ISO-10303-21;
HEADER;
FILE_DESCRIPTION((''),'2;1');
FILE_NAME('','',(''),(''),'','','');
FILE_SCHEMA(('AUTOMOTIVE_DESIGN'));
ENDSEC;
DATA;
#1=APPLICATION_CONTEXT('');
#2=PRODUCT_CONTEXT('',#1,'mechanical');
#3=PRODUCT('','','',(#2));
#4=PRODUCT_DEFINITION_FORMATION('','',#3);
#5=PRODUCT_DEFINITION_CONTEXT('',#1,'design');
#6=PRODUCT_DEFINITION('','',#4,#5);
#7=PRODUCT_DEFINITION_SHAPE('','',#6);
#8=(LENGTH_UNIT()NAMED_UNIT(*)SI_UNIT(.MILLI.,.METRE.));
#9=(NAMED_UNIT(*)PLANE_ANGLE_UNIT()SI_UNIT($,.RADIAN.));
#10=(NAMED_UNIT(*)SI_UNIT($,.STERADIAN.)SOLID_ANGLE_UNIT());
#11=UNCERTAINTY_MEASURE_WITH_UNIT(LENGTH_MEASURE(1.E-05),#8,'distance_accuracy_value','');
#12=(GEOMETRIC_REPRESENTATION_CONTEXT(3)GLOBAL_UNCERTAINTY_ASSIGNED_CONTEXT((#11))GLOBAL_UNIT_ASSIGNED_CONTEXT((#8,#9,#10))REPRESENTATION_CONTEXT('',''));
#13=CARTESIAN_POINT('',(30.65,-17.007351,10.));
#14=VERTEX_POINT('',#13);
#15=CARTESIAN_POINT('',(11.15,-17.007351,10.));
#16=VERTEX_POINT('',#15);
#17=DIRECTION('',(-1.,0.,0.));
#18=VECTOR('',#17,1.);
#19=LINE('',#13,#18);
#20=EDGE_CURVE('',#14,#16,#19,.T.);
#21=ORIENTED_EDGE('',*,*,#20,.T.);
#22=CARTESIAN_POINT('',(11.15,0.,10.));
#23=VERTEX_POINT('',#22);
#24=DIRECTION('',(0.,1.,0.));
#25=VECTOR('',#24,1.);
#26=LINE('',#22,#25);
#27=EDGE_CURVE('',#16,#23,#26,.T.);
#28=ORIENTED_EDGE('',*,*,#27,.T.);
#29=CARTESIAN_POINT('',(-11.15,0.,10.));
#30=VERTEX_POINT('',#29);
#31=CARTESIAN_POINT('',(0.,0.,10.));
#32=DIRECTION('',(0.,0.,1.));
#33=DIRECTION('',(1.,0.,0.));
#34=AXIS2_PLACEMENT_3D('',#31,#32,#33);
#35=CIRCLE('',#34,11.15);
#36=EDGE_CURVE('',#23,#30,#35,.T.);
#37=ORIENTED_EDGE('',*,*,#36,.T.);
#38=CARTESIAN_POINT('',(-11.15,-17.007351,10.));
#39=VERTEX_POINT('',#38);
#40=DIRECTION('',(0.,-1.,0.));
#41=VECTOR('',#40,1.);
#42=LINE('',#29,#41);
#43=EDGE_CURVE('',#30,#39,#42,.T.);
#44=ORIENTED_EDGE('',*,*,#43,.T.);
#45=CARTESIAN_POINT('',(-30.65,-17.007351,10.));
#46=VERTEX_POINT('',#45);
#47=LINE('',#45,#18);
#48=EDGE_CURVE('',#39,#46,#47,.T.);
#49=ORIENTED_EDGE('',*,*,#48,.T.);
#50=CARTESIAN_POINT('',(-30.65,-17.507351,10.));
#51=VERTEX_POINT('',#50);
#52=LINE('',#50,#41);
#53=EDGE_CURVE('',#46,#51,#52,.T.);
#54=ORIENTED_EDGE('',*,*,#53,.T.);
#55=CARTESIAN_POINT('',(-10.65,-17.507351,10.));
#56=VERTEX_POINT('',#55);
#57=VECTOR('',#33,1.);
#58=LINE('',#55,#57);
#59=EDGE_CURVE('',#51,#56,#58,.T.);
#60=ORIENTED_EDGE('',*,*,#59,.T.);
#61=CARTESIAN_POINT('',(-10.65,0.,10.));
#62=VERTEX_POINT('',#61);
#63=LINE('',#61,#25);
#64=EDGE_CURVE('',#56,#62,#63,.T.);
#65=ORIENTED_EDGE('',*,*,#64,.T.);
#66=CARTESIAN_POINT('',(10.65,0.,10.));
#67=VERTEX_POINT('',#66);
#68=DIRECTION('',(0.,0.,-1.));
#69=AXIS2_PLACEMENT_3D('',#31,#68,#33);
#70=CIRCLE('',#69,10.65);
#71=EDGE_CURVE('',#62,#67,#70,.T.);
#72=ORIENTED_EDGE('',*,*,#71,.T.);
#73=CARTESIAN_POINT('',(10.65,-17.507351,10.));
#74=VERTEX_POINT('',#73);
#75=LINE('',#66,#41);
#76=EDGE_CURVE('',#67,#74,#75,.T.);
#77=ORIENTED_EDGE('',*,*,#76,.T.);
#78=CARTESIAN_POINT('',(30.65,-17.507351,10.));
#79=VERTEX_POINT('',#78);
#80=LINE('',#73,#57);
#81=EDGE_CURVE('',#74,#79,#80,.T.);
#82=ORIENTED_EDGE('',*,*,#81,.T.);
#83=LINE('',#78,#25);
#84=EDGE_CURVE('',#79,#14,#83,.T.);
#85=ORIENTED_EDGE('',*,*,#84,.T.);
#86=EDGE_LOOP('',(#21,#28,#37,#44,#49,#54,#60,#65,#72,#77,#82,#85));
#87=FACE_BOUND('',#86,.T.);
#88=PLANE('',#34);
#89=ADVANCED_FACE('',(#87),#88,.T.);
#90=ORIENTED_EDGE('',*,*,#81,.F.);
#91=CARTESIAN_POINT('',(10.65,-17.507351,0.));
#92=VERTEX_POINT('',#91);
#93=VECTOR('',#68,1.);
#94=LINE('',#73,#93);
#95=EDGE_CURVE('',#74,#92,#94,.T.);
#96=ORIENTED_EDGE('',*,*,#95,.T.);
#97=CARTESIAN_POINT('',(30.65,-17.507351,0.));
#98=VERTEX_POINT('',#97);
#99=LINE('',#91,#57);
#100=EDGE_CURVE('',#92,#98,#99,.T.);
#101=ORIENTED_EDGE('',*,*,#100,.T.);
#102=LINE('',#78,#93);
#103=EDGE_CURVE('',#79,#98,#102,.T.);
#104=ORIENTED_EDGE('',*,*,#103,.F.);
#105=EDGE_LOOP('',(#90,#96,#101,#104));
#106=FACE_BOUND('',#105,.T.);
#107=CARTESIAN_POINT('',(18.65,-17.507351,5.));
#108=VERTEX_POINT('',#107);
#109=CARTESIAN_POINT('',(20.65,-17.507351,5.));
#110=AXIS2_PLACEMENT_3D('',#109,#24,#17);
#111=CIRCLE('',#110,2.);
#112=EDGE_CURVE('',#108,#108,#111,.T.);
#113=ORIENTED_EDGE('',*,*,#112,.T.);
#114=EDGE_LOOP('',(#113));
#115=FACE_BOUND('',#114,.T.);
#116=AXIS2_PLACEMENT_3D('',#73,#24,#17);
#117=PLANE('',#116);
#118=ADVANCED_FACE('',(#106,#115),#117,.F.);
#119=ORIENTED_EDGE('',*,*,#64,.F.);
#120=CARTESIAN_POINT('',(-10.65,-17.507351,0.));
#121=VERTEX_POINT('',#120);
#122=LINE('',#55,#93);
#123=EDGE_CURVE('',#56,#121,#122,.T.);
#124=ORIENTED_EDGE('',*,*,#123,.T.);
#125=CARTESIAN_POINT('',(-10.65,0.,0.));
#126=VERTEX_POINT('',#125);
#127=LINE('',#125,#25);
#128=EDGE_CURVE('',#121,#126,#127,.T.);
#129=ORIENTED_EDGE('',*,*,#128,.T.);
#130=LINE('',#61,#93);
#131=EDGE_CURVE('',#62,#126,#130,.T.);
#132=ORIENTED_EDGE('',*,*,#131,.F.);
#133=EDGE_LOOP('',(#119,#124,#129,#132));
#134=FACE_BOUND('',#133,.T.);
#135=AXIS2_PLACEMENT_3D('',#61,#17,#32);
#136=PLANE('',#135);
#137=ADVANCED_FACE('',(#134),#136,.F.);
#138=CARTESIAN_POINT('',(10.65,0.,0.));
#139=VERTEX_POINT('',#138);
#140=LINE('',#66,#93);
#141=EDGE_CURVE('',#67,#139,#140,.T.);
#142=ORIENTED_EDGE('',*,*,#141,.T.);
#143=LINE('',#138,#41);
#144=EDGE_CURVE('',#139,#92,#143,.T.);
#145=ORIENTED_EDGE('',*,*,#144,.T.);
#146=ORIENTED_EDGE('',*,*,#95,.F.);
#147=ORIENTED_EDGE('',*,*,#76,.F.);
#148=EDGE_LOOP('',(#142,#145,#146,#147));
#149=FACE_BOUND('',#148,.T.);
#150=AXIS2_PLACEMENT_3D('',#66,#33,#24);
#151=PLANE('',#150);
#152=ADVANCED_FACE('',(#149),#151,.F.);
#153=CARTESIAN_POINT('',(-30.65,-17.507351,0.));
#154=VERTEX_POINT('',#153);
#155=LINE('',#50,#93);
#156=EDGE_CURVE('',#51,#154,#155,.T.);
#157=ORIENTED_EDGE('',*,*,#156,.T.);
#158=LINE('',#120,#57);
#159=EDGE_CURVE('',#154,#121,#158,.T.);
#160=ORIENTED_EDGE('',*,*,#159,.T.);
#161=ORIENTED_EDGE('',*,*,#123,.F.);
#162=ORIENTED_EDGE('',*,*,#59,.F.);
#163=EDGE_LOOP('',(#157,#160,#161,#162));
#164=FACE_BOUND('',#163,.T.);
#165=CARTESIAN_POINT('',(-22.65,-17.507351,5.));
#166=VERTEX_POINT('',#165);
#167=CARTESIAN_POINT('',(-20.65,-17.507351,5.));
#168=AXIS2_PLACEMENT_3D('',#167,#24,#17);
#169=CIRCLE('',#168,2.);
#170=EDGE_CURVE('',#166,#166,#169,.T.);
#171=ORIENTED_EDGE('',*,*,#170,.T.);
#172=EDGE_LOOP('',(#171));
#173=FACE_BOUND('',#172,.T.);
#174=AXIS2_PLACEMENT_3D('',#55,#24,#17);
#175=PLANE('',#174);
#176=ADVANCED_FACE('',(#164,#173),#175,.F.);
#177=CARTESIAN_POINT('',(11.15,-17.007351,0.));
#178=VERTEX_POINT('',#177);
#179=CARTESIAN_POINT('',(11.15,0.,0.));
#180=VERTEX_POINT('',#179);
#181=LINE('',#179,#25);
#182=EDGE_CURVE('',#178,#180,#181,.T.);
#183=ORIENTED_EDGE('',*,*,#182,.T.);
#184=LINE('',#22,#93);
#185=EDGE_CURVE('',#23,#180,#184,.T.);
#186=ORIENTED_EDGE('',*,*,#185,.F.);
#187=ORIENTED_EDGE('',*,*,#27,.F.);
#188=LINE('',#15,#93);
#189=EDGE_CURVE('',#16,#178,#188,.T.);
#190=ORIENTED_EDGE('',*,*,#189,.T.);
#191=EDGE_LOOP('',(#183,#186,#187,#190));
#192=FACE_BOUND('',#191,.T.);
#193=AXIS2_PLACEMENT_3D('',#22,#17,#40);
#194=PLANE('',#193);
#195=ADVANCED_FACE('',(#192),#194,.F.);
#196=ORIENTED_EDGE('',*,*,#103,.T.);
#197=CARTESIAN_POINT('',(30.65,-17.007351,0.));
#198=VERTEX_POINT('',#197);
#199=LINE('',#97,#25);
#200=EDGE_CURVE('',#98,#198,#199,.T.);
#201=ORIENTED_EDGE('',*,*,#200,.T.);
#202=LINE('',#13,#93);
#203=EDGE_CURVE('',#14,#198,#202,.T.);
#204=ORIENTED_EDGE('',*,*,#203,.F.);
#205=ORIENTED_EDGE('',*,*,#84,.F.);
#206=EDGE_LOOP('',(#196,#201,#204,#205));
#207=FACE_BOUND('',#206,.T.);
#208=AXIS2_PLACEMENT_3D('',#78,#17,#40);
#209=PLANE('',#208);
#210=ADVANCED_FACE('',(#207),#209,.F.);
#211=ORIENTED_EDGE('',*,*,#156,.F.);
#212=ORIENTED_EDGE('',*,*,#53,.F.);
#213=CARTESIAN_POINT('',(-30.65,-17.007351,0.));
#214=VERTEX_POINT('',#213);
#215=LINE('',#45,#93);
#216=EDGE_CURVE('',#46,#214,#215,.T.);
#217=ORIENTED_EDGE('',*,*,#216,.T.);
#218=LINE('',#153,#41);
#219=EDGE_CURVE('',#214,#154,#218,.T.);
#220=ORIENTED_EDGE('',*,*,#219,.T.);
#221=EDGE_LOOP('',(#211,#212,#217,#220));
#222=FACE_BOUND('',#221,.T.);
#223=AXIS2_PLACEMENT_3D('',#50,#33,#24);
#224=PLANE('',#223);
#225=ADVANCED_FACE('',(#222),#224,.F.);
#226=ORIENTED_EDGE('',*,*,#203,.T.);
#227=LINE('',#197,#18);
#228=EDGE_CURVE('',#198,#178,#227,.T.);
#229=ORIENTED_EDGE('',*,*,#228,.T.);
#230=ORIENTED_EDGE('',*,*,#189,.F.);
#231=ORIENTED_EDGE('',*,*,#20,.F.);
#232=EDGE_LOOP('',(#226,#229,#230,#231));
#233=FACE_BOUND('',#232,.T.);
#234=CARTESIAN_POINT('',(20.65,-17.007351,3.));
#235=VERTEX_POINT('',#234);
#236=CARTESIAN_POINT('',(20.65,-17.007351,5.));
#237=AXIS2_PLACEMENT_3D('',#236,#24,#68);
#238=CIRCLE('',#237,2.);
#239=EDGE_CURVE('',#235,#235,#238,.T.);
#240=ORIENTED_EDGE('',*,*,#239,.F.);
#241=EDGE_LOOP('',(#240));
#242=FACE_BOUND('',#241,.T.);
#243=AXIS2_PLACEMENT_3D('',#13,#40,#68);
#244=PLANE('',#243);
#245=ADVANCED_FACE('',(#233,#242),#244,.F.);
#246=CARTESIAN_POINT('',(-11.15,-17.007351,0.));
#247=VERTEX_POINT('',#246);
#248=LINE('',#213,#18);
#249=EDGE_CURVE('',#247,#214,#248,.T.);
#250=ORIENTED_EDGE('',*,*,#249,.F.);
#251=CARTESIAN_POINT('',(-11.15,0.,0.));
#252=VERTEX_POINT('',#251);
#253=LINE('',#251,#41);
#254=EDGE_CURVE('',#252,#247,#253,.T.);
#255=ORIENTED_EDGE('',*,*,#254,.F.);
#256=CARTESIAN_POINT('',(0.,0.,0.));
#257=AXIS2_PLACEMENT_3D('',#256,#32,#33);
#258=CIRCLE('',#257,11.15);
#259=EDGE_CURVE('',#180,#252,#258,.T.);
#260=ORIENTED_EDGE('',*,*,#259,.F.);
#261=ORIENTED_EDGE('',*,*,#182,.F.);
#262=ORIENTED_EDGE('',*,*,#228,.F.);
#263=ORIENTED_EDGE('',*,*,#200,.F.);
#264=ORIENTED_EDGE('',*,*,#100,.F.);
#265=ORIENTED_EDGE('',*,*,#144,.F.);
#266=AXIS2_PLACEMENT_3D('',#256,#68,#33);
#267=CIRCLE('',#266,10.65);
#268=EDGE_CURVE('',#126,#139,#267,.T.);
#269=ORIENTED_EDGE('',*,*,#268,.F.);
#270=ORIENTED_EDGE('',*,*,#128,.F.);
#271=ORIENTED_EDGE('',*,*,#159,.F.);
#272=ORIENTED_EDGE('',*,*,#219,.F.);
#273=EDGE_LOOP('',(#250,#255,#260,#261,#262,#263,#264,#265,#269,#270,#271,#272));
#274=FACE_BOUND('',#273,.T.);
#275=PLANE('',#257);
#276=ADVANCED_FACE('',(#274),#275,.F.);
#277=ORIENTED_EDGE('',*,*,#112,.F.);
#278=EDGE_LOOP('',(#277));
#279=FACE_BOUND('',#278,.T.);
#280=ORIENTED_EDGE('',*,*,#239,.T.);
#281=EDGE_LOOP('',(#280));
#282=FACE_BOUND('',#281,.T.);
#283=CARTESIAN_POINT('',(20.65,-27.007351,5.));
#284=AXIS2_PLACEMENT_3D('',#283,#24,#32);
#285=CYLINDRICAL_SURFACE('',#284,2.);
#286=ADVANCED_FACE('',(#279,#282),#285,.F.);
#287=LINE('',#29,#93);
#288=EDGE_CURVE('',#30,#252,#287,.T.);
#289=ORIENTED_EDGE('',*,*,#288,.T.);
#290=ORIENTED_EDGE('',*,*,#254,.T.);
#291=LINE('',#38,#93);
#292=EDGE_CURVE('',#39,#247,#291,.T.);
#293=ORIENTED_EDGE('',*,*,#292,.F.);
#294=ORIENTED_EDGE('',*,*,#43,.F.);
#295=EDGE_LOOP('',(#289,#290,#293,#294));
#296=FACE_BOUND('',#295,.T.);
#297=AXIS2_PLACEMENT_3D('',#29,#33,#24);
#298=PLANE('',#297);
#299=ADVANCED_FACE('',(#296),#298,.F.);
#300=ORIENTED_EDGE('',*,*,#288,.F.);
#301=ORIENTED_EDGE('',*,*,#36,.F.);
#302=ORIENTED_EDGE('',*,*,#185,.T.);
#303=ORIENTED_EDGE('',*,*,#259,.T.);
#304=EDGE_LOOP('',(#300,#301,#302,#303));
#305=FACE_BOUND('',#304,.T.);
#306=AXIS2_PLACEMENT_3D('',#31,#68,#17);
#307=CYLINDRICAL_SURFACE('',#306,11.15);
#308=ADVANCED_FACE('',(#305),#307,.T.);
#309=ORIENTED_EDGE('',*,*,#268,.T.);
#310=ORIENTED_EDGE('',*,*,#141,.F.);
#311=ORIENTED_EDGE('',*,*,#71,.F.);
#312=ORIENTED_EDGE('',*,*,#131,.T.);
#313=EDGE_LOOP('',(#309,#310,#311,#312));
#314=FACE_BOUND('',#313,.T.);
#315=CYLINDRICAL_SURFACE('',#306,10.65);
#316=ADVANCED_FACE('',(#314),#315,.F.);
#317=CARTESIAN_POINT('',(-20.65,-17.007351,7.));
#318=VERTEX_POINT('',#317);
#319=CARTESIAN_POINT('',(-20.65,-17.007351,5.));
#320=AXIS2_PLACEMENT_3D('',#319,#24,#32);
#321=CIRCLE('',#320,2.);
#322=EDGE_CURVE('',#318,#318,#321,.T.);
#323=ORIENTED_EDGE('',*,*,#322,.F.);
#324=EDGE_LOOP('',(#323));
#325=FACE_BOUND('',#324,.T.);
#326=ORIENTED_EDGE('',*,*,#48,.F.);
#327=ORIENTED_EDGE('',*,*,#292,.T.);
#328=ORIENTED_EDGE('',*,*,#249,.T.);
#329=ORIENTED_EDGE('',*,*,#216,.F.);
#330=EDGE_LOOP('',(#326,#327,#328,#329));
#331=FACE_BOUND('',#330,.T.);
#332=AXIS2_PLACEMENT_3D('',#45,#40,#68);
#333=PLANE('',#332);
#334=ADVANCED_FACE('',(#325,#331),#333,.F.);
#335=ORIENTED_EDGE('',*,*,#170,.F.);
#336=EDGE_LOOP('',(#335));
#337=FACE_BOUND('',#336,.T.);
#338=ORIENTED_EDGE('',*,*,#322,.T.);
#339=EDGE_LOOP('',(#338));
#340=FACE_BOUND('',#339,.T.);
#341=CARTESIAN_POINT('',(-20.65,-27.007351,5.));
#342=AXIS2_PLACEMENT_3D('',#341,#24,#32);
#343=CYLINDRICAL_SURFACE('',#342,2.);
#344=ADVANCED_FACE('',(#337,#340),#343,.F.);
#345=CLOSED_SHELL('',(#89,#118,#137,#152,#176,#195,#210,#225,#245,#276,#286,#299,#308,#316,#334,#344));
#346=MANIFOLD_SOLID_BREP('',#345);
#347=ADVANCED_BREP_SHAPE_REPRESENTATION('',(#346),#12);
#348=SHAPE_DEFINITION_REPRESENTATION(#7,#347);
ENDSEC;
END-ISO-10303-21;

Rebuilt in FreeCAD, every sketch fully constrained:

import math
import FreeCAD as App
import Part
import Sketcher
Q = App.Units.Quantity

doc = App.newDocument("Part")
body = doc.addObject("PartDesign::Body", "Body")

# Sketch on XY plane
sketch1 = body.newObject("Sketcher::SketchObject", "Sketch")
sketch1.AttachmentSupport = (doc.getObject("XY_Plane"), [""])
sketch1.MapMode = "FlatFace"
sketch1.addGeometry(Part.LineSegment(App.Vector(-11.2, 0, 0), App.Vector(-11.2, -17, 0)), False)
sketch1.addGeometry(Part.LineSegment(App.Vector(-11.2, -17, 0), App.Vector(-30.6, -17, 0)), False)
sketch1.addGeometry(Part.LineSegment(App.Vector(-30.6, -17, 0), App.Vector(-30.6, -17.5, 0)), False)
sketch1.addGeometry(Part.LineSegment(App.Vector(-30.6, -17.5, 0), App.Vector(-10.7, -17.5, 0)), False)
sketch1.addGeometry(Part.LineSegment(App.Vector(-10.7, -17.5, 0), App.Vector(-10.7, 0, 0)), False)
sketch1.addGeometry(Part.ArcOfCircle(Part.Circle(App.Vector(0, 0, 0), App.Vector(0, 0, 1), 10.7), math.radians(0), math.radians(180)), False)
sketch1.addGeometry(Part.LineSegment(App.Vector(10.7, 0, 0), App.Vector(10.7, -17.5, 0)), False)
sketch1.addGeometry(Part.LineSegment(App.Vector(10.7, -17.5, 0), App.Vector(30.6, -17.5, 0)), False)
sketch1.addGeometry(Part.LineSegment(App.Vector(30.6, -17.5, 0), App.Vector(30.6, -17, 0)), False)
sketch1.addGeometry(Part.LineSegment(App.Vector(30.6, -17, 0), App.Vector(11.2, -17, 0)), False)
sketch1.addGeometry(Part.LineSegment(App.Vector(11.2, -17, 0), App.Vector(11.2, 0, 0)), False)
sketch1.addGeometry(Part.ArcOfCircle(Part.Circle(App.Vector(0, 0, 0), App.Vector(0, 0, 1), 11.2), math.radians(0), math.radians(180)), False)
sketch1.addConstraint(Sketcher.Constraint("Coincident", 0, 2, 1, 1))
sketch1.addConstraint(Sketcher.Constraint("Coincident", 1, 2, 2, 1))
sketch1.addConstraint(Sketcher.Constraint("Coincident", 2, 2, 3, 1))
sketch1.addConstraint(Sketcher.Constraint("Coincident", 3, 2, 4, 1))
sketch1.addConstraint(Sketcher.Constraint("Tangent", 4, 2, 5, 2))
sketch1.addConstraint(Sketcher.Constraint("Tangent", 5, 1, 6, 1))
sketch1.addConstraint(Sketcher.Constraint("Coincident", 6, 2, 7, 1))
sketch1.addConstraint(Sketcher.Constraint("Coincident", 7, 2, 8, 1))
sketch1.addConstraint(Sketcher.Constraint("Coincident", 8, 2, 9, 1))
sketch1.addConstraint(Sketcher.Constraint("Coincident", 9, 2, 10, 1))
sketch1.addConstraint(Sketcher.Constraint("Tangent", 10, 2, 11, 1))
sketch1.addConstraint(Sketcher.Constraint("Tangent", 11, 2, 0, 1))
sketch1.addConstraint(Sketcher.Constraint("Vertical", 0))
sketch1.addConstraint(Sketcher.Constraint("Horizontal", 1))
sketch1.addConstraint(Sketcher.Constraint("Vertical", 2))
sketch1.addConstraint(Sketcher.Constraint("Horizontal", 3))
sketch1.addConstraint(Sketcher.Constraint("Vertical", 4))
sketch1.addConstraint(Sketcher.Constraint("Vertical", 6))
sketch1.addConstraint(Sketcher.Constraint("Horizontal", 7))
sketch1.addConstraint(Sketcher.Constraint("Vertical", 8))
sketch1.addConstraint(Sketcher.Constraint("Horizontal", 9))
sketch1.addConstraint(Sketcher.Constraint("Vertical", 10))
sketch1.addConstraint(Sketcher.Constraint("Coincident", 5, 3, -1, 1))
sketch1.addConstraint(Sketcher.Constraint("Coincident", 11, 3, -1, 1))
sketch1.addConstraint(Sketcher.Constraint("Symmetric", 2, 2, 7, 2, -2))
sketch1.addConstraint(Sketcher.Constraint("Horizontal", 1, 2, 8, 2))
sketch1.addConstraint(Sketcher.Constraint("DistanceX", 3, 1, 3, 2, Q("20 mm")))
sketch1.addConstraint(Sketcher.Constraint("Radius", 5, Q("10.65 mm")))
sketch1.addConstraint(Sketcher.Constraint("Radius", 11, Q("11.15 mm")))
sketch1.addConstraint(Sketcher.Constraint("DistanceY", 2, 2, 2, 1, Q("0.5 mm")))
sketch1.addConstraint(Sketcher.Constraint("DistanceY", 0, 2, 0, 1, Q("17.007351 mm")))
pad1 = body.newObject("PartDesign::Pad", "Pad")
pad1.Profile = sketch1
pad1.Length = 10

# Sketch on XZ plane
sketch2 = body.newObject("Sketcher::SketchObject", "Sketch001")
sketch2.AttachmentSupport = (doc.getObject("XZ_Plane"), [""])
sketch2.MapMode = "FlatFace"
sketch2.AttachmentOffset = App.Placement(App.Vector(0, 0, 17.007351), App.Rotation())
sketch2.addGeometry(Part.Circle(App.Vector(-20.6, 5, 0), App.Vector(0, 0, 1), 2), False)
sketch2.addGeometry(Part.Circle(App.Vector(20.6, 5, 0), App.Vector(0, 0, 1), 2), False)
sketch2.addConstraint(Sketcher.Constraint("Equal", 0, 1))
sketch2.addConstraint(Sketcher.Constraint("Symmetric", 0, 3, 1, 3, -2))
sketch2.addConstraint(Sketcher.Constraint("Diameter", 0, Q("4 mm")))
sketch2.addConstraint(Sketcher.Constraint("DistanceY", -1, 1, 0, 3, Q("5 mm")))
sketch2.addConstraint(Sketcher.Constraint("DistanceX", 0, 3, 1, 3, Q("41.3 mm")))
pocket1 = body.newObject("PartDesign::Pocket", "Pocket")
pocket1.Profile = sketch2
pocket1.Length = 10
pocket1.Reversed = True

doc.recompute()
